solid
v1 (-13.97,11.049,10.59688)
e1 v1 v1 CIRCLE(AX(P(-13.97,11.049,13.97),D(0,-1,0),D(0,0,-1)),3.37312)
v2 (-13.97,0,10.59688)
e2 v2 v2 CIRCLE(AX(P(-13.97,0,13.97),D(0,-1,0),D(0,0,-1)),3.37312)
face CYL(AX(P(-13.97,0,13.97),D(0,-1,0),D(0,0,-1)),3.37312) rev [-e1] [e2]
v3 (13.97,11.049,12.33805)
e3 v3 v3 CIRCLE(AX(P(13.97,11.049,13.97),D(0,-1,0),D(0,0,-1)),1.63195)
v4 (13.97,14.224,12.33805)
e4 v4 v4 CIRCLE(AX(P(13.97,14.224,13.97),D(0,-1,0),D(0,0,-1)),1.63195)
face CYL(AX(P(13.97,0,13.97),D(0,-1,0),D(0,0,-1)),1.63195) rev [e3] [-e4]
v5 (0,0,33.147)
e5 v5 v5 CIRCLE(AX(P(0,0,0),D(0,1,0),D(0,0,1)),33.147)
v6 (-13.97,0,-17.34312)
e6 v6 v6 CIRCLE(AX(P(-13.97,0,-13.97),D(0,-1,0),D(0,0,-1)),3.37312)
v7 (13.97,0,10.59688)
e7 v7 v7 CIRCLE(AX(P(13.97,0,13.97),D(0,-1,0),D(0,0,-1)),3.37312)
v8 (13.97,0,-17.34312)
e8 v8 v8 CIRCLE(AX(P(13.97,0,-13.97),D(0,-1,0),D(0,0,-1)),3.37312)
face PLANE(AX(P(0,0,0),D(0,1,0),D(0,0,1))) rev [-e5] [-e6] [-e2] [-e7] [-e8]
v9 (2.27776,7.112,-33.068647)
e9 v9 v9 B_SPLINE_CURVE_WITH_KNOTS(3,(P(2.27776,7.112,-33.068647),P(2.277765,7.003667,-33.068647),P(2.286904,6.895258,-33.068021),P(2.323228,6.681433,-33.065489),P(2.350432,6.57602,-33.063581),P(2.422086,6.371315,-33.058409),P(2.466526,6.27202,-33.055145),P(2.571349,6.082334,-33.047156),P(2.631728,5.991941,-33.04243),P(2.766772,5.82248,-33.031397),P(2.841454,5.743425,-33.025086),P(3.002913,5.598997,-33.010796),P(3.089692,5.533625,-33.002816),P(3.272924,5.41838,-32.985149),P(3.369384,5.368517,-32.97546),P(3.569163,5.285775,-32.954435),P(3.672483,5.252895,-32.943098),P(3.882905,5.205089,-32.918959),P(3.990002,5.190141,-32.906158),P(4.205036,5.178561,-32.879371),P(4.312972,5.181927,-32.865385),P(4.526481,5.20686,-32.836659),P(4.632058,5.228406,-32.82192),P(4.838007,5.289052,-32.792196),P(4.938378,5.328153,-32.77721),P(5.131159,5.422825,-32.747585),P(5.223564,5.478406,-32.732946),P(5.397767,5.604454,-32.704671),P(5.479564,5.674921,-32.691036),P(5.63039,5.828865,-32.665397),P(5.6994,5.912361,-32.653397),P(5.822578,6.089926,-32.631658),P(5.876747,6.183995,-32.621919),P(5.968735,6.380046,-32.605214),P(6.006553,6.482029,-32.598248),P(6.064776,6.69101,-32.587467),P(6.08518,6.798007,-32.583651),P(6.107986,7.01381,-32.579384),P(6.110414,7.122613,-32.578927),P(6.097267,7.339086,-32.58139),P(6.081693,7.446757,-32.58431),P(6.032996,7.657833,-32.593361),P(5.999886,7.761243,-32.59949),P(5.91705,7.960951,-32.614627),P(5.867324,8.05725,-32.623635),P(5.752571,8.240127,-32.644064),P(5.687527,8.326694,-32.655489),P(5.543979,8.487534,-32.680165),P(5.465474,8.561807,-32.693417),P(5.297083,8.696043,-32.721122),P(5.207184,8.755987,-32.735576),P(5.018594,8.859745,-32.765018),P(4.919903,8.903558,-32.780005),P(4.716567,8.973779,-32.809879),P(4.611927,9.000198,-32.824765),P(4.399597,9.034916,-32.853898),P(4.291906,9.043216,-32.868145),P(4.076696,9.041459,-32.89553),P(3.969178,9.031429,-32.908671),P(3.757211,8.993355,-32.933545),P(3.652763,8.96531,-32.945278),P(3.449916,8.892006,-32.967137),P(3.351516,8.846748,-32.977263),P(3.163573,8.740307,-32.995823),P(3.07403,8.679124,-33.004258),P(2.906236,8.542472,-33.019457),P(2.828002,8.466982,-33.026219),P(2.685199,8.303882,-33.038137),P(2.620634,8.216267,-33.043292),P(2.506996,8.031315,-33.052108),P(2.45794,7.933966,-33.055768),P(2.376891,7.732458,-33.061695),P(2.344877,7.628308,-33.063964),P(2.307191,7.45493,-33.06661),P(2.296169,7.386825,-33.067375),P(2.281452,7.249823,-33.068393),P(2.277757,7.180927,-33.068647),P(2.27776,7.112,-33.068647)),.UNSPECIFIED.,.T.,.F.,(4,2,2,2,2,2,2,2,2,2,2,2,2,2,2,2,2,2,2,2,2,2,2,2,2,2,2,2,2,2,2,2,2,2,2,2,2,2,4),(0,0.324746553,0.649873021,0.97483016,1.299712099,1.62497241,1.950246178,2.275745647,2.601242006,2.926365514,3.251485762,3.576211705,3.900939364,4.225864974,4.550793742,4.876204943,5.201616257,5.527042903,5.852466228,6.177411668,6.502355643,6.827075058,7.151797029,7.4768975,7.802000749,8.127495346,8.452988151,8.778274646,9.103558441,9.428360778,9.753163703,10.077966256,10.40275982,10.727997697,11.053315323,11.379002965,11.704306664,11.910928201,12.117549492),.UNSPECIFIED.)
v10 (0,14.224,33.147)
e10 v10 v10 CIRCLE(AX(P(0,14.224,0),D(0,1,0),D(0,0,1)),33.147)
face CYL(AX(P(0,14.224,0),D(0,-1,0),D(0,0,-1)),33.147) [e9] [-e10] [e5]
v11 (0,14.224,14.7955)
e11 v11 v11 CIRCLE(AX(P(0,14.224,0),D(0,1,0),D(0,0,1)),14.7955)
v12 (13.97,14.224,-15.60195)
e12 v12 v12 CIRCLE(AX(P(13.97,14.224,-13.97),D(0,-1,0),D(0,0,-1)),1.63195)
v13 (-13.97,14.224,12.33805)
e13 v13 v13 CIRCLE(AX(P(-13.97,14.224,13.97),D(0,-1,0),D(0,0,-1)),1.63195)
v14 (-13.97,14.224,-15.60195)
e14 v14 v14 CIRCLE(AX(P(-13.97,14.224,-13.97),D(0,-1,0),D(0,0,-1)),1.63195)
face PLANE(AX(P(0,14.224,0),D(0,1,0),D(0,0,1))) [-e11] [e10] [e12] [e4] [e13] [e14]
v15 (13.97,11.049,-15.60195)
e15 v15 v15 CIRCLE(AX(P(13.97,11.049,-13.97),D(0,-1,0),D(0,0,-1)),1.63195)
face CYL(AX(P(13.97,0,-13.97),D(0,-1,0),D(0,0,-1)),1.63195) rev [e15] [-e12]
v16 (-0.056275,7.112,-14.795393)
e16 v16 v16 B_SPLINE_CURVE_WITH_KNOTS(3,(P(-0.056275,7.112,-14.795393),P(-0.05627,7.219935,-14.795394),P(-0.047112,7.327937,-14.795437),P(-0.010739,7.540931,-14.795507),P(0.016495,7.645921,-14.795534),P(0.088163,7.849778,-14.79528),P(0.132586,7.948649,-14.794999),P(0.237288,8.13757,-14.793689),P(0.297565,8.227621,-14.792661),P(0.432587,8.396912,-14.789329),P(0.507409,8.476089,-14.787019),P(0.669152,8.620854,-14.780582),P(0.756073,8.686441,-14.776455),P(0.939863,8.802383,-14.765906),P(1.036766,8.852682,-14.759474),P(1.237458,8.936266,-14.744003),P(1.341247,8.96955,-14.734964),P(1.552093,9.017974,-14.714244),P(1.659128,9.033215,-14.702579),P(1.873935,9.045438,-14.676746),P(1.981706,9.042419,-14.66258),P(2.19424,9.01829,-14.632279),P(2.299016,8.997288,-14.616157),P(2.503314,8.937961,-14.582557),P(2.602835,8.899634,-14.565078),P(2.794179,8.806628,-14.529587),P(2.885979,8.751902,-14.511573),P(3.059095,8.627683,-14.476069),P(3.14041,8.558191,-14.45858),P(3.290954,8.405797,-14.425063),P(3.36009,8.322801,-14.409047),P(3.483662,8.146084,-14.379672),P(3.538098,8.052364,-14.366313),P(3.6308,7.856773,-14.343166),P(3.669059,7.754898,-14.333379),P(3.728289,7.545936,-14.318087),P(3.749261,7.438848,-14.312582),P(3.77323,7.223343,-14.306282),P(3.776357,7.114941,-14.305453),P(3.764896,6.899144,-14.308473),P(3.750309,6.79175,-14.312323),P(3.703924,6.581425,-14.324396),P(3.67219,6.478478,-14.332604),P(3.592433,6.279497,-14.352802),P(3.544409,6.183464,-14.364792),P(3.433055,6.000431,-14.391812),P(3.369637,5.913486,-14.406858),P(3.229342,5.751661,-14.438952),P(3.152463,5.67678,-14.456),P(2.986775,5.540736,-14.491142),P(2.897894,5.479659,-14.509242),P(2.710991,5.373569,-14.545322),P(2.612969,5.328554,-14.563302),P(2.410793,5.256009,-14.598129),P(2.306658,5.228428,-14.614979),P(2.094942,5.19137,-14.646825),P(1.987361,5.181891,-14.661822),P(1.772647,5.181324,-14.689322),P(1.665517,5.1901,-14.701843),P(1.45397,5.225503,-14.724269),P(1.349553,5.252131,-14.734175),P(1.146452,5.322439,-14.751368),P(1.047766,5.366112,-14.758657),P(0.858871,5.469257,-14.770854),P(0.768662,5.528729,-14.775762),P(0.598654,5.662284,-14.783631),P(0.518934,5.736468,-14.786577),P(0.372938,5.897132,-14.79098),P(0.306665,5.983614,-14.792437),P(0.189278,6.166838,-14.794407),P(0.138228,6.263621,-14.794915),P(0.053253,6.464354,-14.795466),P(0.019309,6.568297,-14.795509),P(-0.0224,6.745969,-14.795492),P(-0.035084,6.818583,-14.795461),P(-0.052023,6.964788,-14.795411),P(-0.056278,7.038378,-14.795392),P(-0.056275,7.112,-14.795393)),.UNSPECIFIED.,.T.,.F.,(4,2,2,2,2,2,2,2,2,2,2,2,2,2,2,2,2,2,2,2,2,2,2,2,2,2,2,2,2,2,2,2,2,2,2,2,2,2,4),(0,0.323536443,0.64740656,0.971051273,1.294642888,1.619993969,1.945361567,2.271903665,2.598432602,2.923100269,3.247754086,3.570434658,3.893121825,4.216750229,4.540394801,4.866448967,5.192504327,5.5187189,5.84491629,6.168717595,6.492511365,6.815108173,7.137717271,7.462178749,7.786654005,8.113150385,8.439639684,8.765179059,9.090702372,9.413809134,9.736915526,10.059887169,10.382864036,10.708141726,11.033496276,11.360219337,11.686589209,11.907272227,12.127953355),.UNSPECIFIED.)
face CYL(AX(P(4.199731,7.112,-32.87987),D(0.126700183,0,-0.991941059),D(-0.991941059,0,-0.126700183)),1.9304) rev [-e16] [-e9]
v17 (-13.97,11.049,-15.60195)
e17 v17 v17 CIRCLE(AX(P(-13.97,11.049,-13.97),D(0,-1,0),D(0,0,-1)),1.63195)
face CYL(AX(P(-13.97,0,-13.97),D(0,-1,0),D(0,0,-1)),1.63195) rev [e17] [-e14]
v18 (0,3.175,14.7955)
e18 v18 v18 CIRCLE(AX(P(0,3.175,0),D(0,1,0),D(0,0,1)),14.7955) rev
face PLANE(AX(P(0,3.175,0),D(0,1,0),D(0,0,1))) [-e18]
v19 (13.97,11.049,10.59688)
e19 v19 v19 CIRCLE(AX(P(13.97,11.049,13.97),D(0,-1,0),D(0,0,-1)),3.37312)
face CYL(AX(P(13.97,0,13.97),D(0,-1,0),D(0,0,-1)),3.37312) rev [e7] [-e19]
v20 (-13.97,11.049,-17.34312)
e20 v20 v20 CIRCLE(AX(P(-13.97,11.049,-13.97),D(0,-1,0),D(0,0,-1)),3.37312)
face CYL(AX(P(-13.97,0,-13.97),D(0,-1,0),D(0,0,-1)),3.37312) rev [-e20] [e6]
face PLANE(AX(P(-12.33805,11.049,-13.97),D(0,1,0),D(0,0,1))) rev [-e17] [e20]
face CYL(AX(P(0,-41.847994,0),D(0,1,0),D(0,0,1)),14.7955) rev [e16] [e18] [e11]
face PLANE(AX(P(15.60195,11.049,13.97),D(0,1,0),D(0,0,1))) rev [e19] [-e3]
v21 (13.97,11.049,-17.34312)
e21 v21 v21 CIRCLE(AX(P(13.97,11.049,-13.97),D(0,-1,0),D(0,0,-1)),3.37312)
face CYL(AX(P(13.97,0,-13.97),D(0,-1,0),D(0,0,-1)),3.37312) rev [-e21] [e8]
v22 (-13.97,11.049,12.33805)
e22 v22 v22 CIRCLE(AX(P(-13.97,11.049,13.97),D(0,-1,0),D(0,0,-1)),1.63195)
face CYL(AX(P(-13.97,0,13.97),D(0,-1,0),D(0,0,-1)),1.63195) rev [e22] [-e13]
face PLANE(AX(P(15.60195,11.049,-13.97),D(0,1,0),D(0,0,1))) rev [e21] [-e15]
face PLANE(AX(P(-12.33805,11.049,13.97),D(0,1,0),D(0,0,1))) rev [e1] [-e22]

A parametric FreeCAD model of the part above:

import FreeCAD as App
import Part
import Sketcher

V = App.Vector
Q = App.Units.Quantity

doc = App.newDocument("Part")
body = doc.addObject("PartDesign::Body", "Body")

# Sketch on XZ plane
sketch1 = doc.addObject("Sketcher::SketchObject", "Sketch")
body.addObject(sketch1)
sketch1.AttachmentSupport = (doc.XZ_Plane, [""])
sketch1.MapMode = "FlatFace"
sketch1.addGeometry(Part.Circle(V(0, 0, 0), V(0, 0, 1), 33.147), False)
sketch1.addConstraint(Sketcher.Constraint("Coincident", 0, 3, -1, 1))
sketch1.addConstraint(Sketcher.Constraint("Diameter", 0, Q("2.61 in")))
pad1 = doc.addObject("PartDesign::Pad", "Pad")
body.addObject(pad1)
pad1.Profile = sketch1
pad1.Length = Q("0.56 in")
pad1.Reversed = True

# Sketch on XZ plane
sketch2 = doc.addObject("Sketcher::SketchObject", "Sketch001")
body.addObject(sketch2)
sketch2.AttachmentSupport = (doc.XZ_Plane, [""])
sketch2.MapMode = "FlatFace"
sketch2.AttachmentOffset = App.Placement(V(0, 0, -0.56 * 25.4), App.Rotation())
sketch2.addGeometry(Part.Circle(V(0, 0, 0), V(0, 0, 1), 14.7955), False)
sketch2.addConstraint(Sketcher.Constraint("Coincident", 0, 3, -1, 1))
sketch2.addConstraint(Sketcher.Constraint("Diameter", 0, Q("1.165 in")))
pocket1 = doc.addObject("PartDesign::Pocket", "Pocket")
body.addObject(pocket1)
pocket1.Profile = sketch2
pocket1.Length = Q("0.435 in")
pocket1.Reversed = True

# Sketch on an angled plane
sketch3 = doc.addObject("Sketcher::SketchObject", "Sketch002")
body.addObject(sketch3)
sketch3.Placement = App.Placement(V(4.199731, 0, -32.87987), App.Rotation(V(-0.991941059, 0, -0.126700183), V(0, 1.000000001, 0), V(0.126700183, 0, -0.991941059), "ZXY"))
sketch3.addGeometry(Part.Circle(V(0, 7.112, 0), V(0, 0, 1), 1.9304), False)
sketch3.addConstraint(Sketcher.Constraint("PointOnObject", 0, 3, -2))
sketch3.addConstraint(Sketcher.Constraint("Diameter", 0, Q("0.152 in")))
sketch3.addConstraint(Sketcher.Constraint("DistanceY", -1, 1, 0, 3, Q("0.28 in")))
doc.recompute()
hole = doc.addObject("PartDesign::Hole", "Hole")
body.addObject(hole)
hole.Profile = sketch3
hole.ThreadType = "None"
hole.Diameter = Q("0.152 in")
hole.DepthType = "Dimension"
hole.Depth = Q("1 in")
hole.DrillPoint = "Angled"
hole.DrillPointAngle = 118

# Sketch on an angled plane
sketch4 = doc.addObject("Sketcher::SketchObject", "Sketch003")
body.addObject(sketch4)
sketch4.Placement = App.Placement(V(0.883338, 0, -6.915692), App.Rotation(V(-0.991941059, 0, -0.126700183), V(0, 1.000000001, 0), V(0.126700183, 0, -0.991941059), "ZXY"))
sketch4.addGeometry(Part.Circle(V(-54.583124, -11.282884, 0), V(0, 0, 1), 1.9304), False)
sketch4.addConstraint(Sketcher.Constraint("Diameter", 0, Q("0.152 in")))
sketch4.addConstraint(Sketcher.Constraint("DistanceX", 0, 3, -1, 1, 54.583124))
sketch4.addConstraint(Sketcher.Constraint("DistanceY", 0, 3, -1, 1, 11.282884))
doc.recompute()
hole2 = doc.addObject("PartDesign::Hole", "Hole001")
body.addObject(hole2)
hole2.Profile = sketch4
hole2.ThreadType = "None"
hole2.Diameter = Q("0.152 in")
hole2.DepthType = "Dimension"
hole2.Depth = Q("1 in")
hole2.DrillPoint = "Angled"
hole2.DrillPointAngle = 118

# Sketch on XZ plane
sketch5 = doc.addObject("Sketcher::SketchObject", "Sketch004")
body.addObject(sketch5)
sketch5.AttachmentSupport = (doc.XZ_Plane, [""])
sketch5.MapMode = "FlatFace"
sketch5.addGeometry(Part.Circle(V(-13.97, 13.97, 0), V(0, 0, 1), 1.63195), False)
sketch5.addGeometry(Part.Circle(V(13.97, 13.97, 0), V(0, 0, 1), 1.63195), False)
sketch5.addGeometry(Part.Circle(V(13.97, -13.97, 0), V(0, 0, 1), 1.63195), False)
sketch5.addGeometry(Part.Circle(V(-13.97, -13.97, 0), V(0, 0, 1), 1.63195), False)
sketch5.addConstraint(Sketcher.Constraint("Equal", 0, 1))
sketch5.addConstraint(Sketcher.Constraint("Equal", 1, 2))
sketch5.addConstraint(Sketcher.Constraint("Equal", 2, 3))
sketch5.addConstraint(Sketcher.Constraint("Symmetric", 0, 3, 2, 3, -1, 1))
sketch5.addConstraint(Sketcher.Constraint("Symmetric", 1, 3, 3, 3, -1, 1))
sketch5.addConstraint(Sketcher.Constraint("Symmetric", 0, 3, 1, 3, -2))
sketch5.addConstraint(Sketcher.Constraint("Diameter", 0, Q("0.1285 in")))
sketch5.addConstraint(Sketcher.Constraint("DistanceX", 0, 3, 1, 3, Q("1.1 in")))
sketch5.addConstraint(Sketcher.Constraint("DistanceY", 2, 3, 1, 3, Q("1.1 in")))
doc.recompute()
hole3 = doc.addObject("PartDesign::Hole", "Hole002")
body.addObject(hole3)
hole3.Profile = sketch5
hole3.ThreadType = "None"
hole3.Diameter = Q("0.1285 in")
hole3.DepthType = "ThroughAll"
hole3.HoleCutType = "Counterbore"
hole3.HoleCutDiameter = Q("0.2656 in")
hole3.HoleCutDepth = Q("0.435 in")

doc.recompute()
